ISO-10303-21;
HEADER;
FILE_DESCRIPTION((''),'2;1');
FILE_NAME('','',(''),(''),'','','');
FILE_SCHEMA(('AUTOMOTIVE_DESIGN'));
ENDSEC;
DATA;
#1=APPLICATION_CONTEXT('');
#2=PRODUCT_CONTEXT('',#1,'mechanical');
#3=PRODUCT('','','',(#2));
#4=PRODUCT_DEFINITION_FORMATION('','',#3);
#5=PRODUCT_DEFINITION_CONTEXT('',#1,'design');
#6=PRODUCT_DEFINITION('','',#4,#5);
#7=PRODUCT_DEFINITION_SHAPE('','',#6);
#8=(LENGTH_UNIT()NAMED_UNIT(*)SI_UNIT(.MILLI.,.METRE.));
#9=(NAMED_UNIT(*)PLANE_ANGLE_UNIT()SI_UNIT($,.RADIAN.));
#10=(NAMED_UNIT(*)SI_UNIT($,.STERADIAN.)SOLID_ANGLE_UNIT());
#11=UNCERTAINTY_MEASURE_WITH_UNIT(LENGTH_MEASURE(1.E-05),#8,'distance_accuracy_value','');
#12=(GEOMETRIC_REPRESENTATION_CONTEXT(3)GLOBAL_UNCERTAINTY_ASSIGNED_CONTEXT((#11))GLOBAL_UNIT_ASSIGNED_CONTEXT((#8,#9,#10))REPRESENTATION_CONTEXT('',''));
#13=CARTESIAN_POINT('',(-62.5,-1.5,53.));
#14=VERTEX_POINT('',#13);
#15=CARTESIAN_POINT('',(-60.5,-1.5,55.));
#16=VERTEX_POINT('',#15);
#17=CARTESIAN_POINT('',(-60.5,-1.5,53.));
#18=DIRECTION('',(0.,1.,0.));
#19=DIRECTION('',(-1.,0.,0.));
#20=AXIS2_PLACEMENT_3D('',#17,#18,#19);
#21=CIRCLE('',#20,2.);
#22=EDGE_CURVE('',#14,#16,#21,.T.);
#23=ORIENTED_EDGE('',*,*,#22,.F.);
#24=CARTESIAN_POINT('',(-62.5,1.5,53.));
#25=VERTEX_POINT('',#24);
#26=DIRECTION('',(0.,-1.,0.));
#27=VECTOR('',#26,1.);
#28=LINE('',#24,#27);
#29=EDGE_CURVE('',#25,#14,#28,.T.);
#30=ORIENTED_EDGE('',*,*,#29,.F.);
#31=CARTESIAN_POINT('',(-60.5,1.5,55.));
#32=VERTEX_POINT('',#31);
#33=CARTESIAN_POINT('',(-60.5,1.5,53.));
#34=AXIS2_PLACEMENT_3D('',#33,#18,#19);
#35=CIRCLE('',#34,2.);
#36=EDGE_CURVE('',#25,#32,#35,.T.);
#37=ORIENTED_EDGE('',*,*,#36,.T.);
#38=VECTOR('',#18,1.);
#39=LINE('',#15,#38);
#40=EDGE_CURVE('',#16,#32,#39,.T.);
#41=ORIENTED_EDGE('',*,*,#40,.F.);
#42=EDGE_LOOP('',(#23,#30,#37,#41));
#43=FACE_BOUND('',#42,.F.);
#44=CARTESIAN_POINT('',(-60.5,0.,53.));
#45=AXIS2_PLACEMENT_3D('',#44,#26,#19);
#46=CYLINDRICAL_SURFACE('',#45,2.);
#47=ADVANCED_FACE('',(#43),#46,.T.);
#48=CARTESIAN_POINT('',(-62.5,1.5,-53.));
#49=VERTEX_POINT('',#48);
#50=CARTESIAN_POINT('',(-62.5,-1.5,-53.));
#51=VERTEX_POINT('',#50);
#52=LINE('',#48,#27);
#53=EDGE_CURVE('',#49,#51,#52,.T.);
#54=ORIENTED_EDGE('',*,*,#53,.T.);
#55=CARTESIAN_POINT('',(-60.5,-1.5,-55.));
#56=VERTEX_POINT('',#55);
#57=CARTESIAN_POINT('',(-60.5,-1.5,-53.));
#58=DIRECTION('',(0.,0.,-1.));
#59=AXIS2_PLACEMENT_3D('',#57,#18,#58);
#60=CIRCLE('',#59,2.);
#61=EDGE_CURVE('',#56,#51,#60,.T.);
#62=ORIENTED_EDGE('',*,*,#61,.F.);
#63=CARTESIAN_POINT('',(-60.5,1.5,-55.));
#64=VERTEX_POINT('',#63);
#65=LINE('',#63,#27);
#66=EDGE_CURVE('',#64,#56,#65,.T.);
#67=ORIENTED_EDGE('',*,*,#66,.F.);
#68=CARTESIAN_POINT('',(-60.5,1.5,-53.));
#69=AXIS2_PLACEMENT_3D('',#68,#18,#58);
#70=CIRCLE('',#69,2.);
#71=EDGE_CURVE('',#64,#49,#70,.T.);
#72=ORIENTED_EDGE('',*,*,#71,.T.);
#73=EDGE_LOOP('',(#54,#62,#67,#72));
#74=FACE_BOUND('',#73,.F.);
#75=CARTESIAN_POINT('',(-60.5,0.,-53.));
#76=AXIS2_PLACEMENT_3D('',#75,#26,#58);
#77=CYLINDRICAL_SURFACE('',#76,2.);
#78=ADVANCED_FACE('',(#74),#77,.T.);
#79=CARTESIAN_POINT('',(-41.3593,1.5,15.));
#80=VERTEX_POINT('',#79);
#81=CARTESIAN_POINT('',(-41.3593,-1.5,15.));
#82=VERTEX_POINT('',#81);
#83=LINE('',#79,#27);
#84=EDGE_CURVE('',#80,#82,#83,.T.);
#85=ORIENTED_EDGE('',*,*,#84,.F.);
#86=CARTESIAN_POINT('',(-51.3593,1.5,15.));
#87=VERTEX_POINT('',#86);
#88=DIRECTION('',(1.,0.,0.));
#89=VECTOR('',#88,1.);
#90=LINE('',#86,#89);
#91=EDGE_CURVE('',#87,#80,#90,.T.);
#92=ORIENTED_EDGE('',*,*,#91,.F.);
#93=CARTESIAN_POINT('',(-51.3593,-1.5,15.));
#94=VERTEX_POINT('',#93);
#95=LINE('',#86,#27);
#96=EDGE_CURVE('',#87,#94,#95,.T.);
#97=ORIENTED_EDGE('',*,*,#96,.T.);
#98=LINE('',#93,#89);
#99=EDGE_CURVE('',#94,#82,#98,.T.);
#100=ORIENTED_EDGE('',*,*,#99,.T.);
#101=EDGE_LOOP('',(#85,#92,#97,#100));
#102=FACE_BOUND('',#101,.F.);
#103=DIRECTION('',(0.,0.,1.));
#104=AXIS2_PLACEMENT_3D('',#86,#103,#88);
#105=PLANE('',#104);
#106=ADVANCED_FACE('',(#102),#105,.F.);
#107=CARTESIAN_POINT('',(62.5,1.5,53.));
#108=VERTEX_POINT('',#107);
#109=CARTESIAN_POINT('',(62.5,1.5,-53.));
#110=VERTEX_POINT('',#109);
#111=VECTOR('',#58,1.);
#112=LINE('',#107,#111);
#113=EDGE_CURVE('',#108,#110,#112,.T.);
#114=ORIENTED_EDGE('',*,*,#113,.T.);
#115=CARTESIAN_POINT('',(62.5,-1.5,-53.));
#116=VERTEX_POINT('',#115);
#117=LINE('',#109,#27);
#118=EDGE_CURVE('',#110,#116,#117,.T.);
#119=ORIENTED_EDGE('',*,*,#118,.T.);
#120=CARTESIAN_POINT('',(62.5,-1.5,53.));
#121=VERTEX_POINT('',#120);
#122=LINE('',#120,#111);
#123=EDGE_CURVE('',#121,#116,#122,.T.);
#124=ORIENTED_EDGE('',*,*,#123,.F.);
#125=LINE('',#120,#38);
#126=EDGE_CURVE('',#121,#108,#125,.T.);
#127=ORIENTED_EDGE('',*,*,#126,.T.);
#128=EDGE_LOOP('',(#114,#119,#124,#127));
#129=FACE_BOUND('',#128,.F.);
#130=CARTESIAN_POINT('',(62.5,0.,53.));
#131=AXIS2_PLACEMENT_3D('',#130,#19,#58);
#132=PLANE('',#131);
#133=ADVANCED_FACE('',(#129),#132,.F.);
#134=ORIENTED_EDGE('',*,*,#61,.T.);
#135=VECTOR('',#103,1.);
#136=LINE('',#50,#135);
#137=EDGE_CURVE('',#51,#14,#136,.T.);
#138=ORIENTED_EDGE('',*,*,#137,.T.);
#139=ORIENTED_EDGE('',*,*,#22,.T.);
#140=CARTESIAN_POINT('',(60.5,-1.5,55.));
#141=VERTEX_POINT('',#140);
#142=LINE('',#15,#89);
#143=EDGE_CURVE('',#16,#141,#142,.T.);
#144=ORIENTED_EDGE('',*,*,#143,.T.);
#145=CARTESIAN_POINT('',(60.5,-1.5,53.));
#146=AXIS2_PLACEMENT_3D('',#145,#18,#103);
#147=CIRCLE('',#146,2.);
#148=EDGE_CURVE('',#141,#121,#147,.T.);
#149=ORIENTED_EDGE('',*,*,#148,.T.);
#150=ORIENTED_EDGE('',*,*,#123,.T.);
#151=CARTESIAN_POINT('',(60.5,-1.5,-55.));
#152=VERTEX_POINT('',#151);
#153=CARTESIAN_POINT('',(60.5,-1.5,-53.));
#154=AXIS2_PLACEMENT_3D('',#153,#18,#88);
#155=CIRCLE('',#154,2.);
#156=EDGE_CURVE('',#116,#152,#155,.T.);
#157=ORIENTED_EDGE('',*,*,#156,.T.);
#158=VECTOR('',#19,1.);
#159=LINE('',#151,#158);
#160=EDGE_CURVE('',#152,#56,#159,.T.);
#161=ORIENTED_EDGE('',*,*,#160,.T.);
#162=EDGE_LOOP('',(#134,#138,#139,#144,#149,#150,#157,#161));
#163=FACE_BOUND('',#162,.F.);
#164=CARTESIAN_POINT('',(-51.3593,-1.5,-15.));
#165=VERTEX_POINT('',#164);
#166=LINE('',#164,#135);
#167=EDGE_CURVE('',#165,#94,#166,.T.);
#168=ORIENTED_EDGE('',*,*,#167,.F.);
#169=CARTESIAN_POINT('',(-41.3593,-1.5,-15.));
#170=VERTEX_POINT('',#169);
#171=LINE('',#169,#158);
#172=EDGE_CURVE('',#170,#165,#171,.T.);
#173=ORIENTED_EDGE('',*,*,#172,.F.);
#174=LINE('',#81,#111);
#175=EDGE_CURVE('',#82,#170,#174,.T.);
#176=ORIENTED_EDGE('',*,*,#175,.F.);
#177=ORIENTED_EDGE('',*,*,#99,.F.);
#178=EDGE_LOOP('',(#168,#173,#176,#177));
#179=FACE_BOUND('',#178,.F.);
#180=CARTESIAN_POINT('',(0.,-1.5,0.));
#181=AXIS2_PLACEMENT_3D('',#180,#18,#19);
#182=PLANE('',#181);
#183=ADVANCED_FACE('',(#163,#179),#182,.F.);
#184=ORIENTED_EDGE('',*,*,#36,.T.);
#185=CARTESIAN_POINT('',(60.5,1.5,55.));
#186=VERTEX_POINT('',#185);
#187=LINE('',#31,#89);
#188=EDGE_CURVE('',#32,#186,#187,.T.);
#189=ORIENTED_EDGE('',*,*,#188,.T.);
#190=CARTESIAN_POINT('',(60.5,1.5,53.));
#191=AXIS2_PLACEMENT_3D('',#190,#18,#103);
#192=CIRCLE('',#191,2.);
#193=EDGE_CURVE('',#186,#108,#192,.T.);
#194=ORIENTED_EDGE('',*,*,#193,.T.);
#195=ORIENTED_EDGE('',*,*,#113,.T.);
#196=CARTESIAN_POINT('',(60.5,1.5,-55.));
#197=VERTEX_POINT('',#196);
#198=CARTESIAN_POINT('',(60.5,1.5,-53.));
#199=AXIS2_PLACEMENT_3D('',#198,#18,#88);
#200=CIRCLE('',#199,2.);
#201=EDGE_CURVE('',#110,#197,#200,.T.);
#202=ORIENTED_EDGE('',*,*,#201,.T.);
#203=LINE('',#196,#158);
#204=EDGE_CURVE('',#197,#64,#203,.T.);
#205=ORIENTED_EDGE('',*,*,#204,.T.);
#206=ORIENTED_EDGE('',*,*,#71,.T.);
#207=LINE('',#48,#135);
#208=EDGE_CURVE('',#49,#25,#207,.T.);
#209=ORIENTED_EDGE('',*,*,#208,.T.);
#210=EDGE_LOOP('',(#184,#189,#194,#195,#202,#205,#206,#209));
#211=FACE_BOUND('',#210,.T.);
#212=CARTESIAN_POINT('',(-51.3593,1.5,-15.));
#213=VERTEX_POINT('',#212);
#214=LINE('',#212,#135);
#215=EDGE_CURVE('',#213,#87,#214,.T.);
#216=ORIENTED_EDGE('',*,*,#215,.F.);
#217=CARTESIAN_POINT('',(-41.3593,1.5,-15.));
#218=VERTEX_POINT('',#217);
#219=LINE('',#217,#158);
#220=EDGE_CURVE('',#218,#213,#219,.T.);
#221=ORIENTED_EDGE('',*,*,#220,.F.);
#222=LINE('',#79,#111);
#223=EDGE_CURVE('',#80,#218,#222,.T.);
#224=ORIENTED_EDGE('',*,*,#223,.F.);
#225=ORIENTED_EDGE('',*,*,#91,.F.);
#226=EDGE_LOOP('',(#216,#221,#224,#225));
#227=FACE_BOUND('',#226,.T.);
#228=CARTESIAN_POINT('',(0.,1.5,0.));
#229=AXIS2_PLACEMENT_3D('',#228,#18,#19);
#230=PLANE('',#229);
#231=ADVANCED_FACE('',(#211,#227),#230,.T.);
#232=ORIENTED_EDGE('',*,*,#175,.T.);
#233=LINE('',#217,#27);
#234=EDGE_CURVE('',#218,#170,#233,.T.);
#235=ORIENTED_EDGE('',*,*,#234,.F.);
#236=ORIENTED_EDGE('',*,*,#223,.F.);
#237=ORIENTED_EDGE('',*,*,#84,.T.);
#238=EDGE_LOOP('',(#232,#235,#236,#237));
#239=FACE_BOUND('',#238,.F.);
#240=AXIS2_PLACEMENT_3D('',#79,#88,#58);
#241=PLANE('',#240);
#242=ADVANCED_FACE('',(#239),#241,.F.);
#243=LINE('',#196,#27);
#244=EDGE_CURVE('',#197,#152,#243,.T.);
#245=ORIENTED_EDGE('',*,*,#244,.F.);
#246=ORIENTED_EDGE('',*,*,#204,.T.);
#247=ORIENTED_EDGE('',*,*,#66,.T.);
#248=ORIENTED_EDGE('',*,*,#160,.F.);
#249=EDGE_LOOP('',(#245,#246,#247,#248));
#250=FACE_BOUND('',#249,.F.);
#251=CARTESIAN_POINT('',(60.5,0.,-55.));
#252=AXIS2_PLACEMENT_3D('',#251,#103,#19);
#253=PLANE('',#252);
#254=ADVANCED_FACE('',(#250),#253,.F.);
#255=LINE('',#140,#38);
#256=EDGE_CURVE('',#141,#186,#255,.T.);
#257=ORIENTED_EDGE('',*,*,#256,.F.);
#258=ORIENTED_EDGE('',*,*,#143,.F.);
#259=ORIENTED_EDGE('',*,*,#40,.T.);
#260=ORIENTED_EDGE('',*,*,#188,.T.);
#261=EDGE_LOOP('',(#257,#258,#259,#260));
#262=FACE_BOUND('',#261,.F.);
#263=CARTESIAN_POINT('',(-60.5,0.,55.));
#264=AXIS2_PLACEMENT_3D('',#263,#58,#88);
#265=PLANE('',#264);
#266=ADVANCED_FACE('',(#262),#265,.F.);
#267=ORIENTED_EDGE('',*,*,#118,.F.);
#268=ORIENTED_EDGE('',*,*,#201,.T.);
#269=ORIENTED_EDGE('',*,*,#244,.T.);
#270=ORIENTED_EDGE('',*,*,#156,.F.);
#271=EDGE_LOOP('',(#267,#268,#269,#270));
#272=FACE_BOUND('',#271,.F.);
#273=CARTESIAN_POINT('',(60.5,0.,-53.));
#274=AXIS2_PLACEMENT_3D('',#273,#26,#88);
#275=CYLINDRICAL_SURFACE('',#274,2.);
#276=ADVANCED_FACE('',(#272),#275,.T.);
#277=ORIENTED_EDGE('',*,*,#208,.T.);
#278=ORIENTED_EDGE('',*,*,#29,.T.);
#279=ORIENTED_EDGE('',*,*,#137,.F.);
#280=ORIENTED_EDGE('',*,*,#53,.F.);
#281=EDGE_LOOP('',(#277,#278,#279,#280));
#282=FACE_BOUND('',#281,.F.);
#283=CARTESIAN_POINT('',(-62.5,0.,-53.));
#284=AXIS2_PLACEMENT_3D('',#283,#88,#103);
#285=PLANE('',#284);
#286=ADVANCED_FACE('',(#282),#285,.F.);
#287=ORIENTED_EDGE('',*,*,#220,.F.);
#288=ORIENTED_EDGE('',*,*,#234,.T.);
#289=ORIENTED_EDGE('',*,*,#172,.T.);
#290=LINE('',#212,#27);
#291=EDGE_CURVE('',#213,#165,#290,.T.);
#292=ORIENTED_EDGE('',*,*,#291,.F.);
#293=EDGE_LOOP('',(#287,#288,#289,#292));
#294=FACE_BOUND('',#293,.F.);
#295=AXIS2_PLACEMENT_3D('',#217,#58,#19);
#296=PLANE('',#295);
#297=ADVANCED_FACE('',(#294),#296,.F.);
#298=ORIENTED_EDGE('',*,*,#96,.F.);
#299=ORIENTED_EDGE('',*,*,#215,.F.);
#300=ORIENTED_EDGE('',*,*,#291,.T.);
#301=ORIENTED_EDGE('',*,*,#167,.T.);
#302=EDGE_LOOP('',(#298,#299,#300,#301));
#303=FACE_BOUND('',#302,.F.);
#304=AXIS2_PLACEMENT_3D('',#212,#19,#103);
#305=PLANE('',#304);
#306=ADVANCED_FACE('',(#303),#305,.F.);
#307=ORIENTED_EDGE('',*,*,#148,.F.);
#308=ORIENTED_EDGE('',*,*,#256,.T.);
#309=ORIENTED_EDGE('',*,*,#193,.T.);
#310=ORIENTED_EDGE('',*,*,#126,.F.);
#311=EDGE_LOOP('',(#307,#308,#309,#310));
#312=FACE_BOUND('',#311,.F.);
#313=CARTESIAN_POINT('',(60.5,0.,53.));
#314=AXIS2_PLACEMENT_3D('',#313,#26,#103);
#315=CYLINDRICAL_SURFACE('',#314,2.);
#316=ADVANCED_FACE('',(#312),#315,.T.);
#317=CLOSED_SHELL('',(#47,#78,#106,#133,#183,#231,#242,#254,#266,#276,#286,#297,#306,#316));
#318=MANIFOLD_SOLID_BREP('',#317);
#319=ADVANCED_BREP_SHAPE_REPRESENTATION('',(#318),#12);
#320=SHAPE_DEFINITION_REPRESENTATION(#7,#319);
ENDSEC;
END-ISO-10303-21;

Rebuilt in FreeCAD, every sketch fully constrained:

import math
import FreeCAD as App
import Part
import Sketcher


def add_polygon(sketch, points):
    """Adds a closed chain of lines whose ends are joined by coincident constraints."""
    first, n = sketch.GeometryCount, len(points)
    for a, b in zip(points, points[1:] + points[:1]):
        sketch.addGeometry(Part.LineSegment(App.Vector(*a, 0), App.Vector(*b, 0)), False)
    for i in range(n):
        sketch.addConstraint(Sketcher.Constraint("Coincident", first + i, 2, first + (i + 1) % n, 1))

doc = App.newDocument("Part")
body = doc.addObject("PartDesign::Body", "Body")

# Sketch on XZ plane
sketch1 = body.newObject("Sketcher::SketchObject", "Sketch")
sketch1.AttachmentSupport = (doc.getObject("XZ_Plane"), [""])
sketch1.MapMode = "FlatFace"
sketch1.addGeometry(Part.ArcOfCircle(Part.Circle(App.Vector(-60.5, 53, 0), App.Vector(0, 0, 1), 2), math.radians(90), math.radians(180)), False)
sketch1.addGeometry(Part.LineSegment(App.Vector(-60.5, 55, 0), App.Vector(60.5, 55, 0)), False)
sketch1.addGeometry(Part.ArcOfCircle(Part.Circle(App.Vector(60.5, 53, 0), App.Vector(0, 0, 1), 2), math.radians(0), math.radians(90)), False)
sketch1.addGeometry(Part.LineSegment(App.Vector(62.5, 53, 0), App.Vector(62.5, -53, 0)), False)
sketch1.addGeometry(Part.ArcOfCircle(Part.Circle(App.Vector(60.5, -53, 0), App.Vector(0, 0, 1), 2), math.radians(-90), math.radians(0)), False)
sketch1.addGeometry(Part.LineSegment(App.Vector(60.5, -55, 0), App.Vector(-60.5, -55, 0)), False)
sketch1.addGeometry(Part.ArcOfCircle(Part.Circle(App.Vector(-60.5, -53, 0), App.Vector(0, 0, 1), 2), math.radians(180), math.radians(270)), False)
sketch1.addGeometry(Part.LineSegment(App.Vector(-62.5, -53, 0), App.Vector(-62.5, 53, 0)), False)
sketch1.addConstraint(Sketcher.Constraint("Tangent", 0, 1, 1, 1))
sketch1.addConstraint(Sketcher.Constraint("Tangent", 1, 2, 2, 2))
sketch1.addConstraint(Sketcher.Constraint("Tangent", 2, 1, 3, 1))
sketch1.addConstraint(Sketcher.Constraint("Tangent", 3, 2, 4, 2))
sketch1.addConstraint(Sketcher.Constraint("Tangent", 4, 1, 5, 1))
sketch1.addConstraint(Sketcher.Constraint("Tangent", 5, 2, 6, 2))
sketch1.addConstraint(Sketcher.Constraint("Tangent", 6, 1, 7, 1))
sketch1.addConstraint(Sketcher.Constraint("Tangent", 7, 2, 0, 2))
sketch1.addConstraint(Sketcher.Constraint("Horizontal", 1))
sketch1.addConstraint(Sketcher.Constraint("Vertical", 3))
sketch1.addConstraint(Sketcher.Constraint("Horizontal", 5))
sketch1.addConstraint(Sketcher.Constraint("Vertical", 7))
sketch1.addConstraint(Sketcher.Constraint("Equal", 0, 2))
sketch1.addConstraint(Sketcher.Constraint("Equal", 2, 4))
sketch1.addConstraint(Sketcher.Constraint("Equal", 4, 6))
sketch1.addConstraint(Sketcher.Constraint("Symmetric", 0, 3, 4, 3, -1, 1))
sketch1.addConstraint(Sketcher.Constraint("Radius", 0, 2.0))
sketch1.addConstraint(Sketcher.Constraint("DistanceX", 1, 1, 1, 2, 121.0))
sketch1.addConstraint(Sketcher.Constraint("DistanceY", 3, 2, 3, 1, 106.0))
pad1 = body.newObject("PartDesign::Pad", "Pad")
pad1.Profile = sketch1
pad1.Length = 3
pad1.Midplane = True

# Sketch on XZ plane
sketch2 = body.newObject("Sketcher::SketchObject", "Sketch001")
sketch2.AttachmentSupport = (doc.getObject("XZ_Plane"), [""])
sketch2.MapMode = "FlatFace"
sketch2.AttachmentOffset = App.Placement(App.Vector(0, 0, -1.5), App.Rotation())
add_polygon(sketch2, [(-41, 15), (-41, -15), (-51, -15), (-51, 15)])  # lines 0-3
sketch2.addConstraint(Sketcher.Constraint("Vertical", 0))
sketch2.addConstraint(Sketcher.Constraint("Horizontal", 1))
sketch2.addConstraint(Sketcher.Constraint("Vertical", 2))
sketch2.addConstraint(Sketcher.Constraint("Horizontal", 3))
sketch2.addConstraint(Sketcher.Constraint("DistanceX", 1, 2, 1, 1, 10.0))
sketch2.addConstraint(Sketcher.Constraint("DistanceY", 0, 2, 0, 1, 30.0))
sketch2.addConstraint(Sketcher.Constraint("DistanceY", 0, 2, -1, 1, 15.0))
sketch2.addConstraint(Sketcher.Constraint("DistanceX", 0, 2, -1, 1, 41.3593))
pocket1 = body.newObject("PartDesign::Pocket", "Pocket")
pocket1.Profile = sketch2
pocket1.Length = 3
pocket1.Reversed = True

doc.recompute()
